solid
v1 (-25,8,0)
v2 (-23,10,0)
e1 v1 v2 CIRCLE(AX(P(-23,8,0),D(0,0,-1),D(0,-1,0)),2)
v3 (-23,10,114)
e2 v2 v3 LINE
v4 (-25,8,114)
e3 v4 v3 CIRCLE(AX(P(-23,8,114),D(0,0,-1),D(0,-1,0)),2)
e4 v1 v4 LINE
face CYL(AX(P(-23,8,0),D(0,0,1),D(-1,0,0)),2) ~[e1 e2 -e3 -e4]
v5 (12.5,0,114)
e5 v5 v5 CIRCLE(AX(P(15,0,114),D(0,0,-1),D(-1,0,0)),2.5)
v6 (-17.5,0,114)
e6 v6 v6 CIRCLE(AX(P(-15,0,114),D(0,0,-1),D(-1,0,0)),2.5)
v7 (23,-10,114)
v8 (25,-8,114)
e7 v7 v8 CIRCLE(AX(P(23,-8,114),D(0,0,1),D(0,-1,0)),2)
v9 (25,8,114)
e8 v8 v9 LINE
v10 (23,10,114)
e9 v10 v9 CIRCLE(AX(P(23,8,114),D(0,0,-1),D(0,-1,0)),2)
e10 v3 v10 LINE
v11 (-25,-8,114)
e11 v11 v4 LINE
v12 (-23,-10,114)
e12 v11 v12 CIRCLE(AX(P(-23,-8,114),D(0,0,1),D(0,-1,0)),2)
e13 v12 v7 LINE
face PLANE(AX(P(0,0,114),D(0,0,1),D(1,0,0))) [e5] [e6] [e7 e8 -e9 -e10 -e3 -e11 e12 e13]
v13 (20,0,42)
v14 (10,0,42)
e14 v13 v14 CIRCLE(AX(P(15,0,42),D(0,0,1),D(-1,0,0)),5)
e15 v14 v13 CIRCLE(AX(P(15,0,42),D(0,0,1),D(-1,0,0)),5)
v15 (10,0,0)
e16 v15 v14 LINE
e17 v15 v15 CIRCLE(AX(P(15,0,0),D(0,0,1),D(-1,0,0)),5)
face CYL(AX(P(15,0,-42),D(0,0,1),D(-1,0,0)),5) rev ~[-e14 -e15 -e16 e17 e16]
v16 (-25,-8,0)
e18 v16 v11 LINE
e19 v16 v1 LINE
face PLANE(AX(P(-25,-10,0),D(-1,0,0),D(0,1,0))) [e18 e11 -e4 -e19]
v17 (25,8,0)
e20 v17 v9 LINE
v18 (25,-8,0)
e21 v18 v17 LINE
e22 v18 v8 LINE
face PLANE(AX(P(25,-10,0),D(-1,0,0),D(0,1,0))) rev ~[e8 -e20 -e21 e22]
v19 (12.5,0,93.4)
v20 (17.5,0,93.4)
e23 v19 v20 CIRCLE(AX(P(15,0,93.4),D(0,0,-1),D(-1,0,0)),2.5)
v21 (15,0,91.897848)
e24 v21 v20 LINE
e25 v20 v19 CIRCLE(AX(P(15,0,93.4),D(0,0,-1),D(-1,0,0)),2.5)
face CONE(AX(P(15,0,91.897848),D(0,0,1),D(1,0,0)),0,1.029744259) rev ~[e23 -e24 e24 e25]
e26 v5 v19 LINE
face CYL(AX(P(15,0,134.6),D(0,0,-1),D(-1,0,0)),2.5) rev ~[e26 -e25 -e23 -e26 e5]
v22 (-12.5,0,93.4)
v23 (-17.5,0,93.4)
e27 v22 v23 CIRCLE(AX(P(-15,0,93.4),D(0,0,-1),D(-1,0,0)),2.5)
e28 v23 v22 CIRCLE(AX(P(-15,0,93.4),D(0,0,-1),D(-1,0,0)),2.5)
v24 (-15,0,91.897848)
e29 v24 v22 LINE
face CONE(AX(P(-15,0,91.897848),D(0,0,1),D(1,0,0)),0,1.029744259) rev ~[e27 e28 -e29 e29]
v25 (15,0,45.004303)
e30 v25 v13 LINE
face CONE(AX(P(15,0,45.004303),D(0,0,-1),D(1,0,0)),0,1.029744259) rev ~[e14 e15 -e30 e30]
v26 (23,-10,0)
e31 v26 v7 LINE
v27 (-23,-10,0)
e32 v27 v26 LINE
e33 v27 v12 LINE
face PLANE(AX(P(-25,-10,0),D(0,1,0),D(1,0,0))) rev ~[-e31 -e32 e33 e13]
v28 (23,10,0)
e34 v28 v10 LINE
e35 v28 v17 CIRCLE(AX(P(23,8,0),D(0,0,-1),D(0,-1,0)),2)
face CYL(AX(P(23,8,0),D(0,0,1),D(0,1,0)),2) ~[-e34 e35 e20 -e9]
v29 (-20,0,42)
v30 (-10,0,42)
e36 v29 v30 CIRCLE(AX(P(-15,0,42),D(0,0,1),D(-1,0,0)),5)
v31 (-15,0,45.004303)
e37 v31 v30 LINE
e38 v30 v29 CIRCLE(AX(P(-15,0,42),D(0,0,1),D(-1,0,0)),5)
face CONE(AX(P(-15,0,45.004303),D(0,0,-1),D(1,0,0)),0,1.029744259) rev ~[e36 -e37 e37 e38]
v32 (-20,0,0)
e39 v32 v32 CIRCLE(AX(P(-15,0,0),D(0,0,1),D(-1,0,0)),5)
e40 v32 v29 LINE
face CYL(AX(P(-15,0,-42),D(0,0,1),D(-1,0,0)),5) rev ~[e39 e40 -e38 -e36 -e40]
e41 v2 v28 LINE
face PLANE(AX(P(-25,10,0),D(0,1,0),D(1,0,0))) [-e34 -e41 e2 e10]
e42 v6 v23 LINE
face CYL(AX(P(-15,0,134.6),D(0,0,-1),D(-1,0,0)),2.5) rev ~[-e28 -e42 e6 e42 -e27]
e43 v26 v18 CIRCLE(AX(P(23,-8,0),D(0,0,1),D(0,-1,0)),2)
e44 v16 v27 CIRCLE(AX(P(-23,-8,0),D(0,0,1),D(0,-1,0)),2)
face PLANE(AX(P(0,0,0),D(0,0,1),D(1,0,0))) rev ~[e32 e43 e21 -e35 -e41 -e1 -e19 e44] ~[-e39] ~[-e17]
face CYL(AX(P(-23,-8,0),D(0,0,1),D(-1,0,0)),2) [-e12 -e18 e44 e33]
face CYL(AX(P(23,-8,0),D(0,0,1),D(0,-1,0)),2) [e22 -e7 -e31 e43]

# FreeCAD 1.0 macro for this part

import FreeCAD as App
import Part
import Sketcher


def edges_at(feature, points):
    """Names of the edges that pass closest to the given points."""
    edges = feature.Shape.Edges
    near = lambda p: min(range(len(edges)), key=lambda i: edges[i].distToShape(Part.Vertex(*p))[0])
    return sorted({f"Edge{near(p) + 1}" for p in points})


def add_polygon(sketch, points):
    """Adds a closed chain of lines whose ends are joined by coincident constraints."""
    first, n = sketch.GeometryCount, len(points)
    for a, b in zip(points, points[1:] + points[:1]):
        sketch.addGeometry(Part.LineSegment(App.Vector(*a, 0), App.Vector(*b, 0)), False)
    for i in range(n):
        sketch.addConstraint(Sketcher.Constraint("Coincident", first + i, 2, first + (i + 1) % n, 1))

doc = App.newDocument("Part")
body = doc.addObject("PartDesign::Body", "Body")

# Sketch on XY plane
sketch1 = body.newObject("Sketcher::SketchObject", "Sketch")
sketch1.AttachmentSupport = (doc.getObject("XY_Plane"), [""])
sketch1.MapMode = "FlatFace"
add_polygon(sketch1, [(-25, 10), (-25, -10), (25, -10), (25, 10)])  # lines 0-3
sketch1.addConstraint(Sketcher.Constraint("Vertical", 0))
sketch1.addConstraint(Sketcher.Constraint("Horizontal", 1))
sketch1.addConstraint(Sketcher.Constraint("Vertical", 2))
sketch1.addConstraint(Sketcher.Constraint("Horizontal", 3))
sketch1.addConstraint(Sketcher.Constraint("Symmetric", 0, 2, 2, 2, -1, 1))
sketch1.addConstraint(Sketcher.Constraint("DistanceX", 1, 1, 1, 2, 50.0))
sketch1.addConstraint(Sketcher.Constraint("DistanceY", 0, 2, 0, 1, 20.0))
pad1 = body.newObject("PartDesign::Pad", "Pad")
pad1.Profile = sketch1
pad1.Length = 114

# Sketch on XY plane
sketch2 = body.newObject("Sketcher::SketchObject", "Sketch001")
sketch2.AttachmentSupport = (doc.getObject("XY_Plane"), [""])
sketch2.MapMode = "FlatFace"
sketch2.AttachmentOffset = App.Placement(App.Vector(0, 0, 114), App.Rotation())
sketch2.addGeometry(Part.Circle(App.Vector(-15, 0, 0), App.Vector(0, 0, 1), 2.5), False)
sketch2.addGeometry(Part.Circle(App.Vector(15, 0, 0), App.Vector(0, 0, 1), 2.5), False)
sketch2.addConstraint(Sketcher.Constraint("Equal", 0, 1))
sketch2.addConstraint(Sketcher.Constraint("Symmetric", 0, 3, 1, 3, -1, 1))
sketch2.addConstraint(Sketcher.Constraint("PointOnObject", 0, 3, -1))
sketch2.addConstraint(Sketcher.Constraint("Diameter", 0, 5.0))
sketch2.addConstraint(Sketcher.Constraint("DistanceX", 0, 3, -1, 1, 15.0))
doc.recompute()
hole = body.newObject("PartDesign::Hole", "Hole")
hole.Profile = sketch2
hole.ThreadType = "None"
hole.Diameter = 5
hole.DepthType = "Dimension"
hole.Depth = 20.6
hole.DrillPoint = "Angled"
hole.DrillPointAngle = 118

# Sketch on XY plane
sketch3 = body.newObject("Sketcher::SketchObject", "Sketch002")
sketch3.AttachmentSupport = (doc.getObject("XY_Plane"), [""])
sketch3.MapMode = "FlatFace"
sketch3.addGeometry(Part.Circle(App.Vector(-15, 0, 0), App.Vector(0, 0, 1), 5), False)
sketch3.addGeometry(Part.Circle(App.Vector(15, 0, 0), App.Vector(0, 0, 1), 5), False)
sketch3.addConstraint(Sketcher.Constraint("Equal", 0, 1))
sketch3.addConstraint(Sketcher.Constraint("Symmetric", 0, 3, 1, 3, -1, 1))
sketch3.addConstraint(Sketcher.Constraint("PointOnObject", 0, 3, -1))
sketch3.addConstraint(Sketcher.Constraint("Diameter", 0, 10.0))
sketch3.addConstraint(Sketcher.Constraint("DistanceX", 0, 3, -1, 1, 15.0))
doc.recompute()
hole2 = body.newObject("PartDesign::Hole", "Hole001")
hole2.Profile = sketch3
hole2.ThreadType = "None"
hole2.Diameter = 10
hole2.DepthType = "Dimension"
hole2.Depth = 42
hole2.DrillPoint = "Angled"
hole2.DrillPointAngle = 118
hole2.Reversed = True
doc.recompute()

fillet = body.newObject("PartDesign::Fillet", "Fillet")
fillet.Base = (hole2, edges_at(hole2, [
    (25, -10, 57),
    (-25, -10, 57),
    (-25, 10, 57),
    (25, 10, 57),
]))
fillet.Radius = 2

doc.recompute()
